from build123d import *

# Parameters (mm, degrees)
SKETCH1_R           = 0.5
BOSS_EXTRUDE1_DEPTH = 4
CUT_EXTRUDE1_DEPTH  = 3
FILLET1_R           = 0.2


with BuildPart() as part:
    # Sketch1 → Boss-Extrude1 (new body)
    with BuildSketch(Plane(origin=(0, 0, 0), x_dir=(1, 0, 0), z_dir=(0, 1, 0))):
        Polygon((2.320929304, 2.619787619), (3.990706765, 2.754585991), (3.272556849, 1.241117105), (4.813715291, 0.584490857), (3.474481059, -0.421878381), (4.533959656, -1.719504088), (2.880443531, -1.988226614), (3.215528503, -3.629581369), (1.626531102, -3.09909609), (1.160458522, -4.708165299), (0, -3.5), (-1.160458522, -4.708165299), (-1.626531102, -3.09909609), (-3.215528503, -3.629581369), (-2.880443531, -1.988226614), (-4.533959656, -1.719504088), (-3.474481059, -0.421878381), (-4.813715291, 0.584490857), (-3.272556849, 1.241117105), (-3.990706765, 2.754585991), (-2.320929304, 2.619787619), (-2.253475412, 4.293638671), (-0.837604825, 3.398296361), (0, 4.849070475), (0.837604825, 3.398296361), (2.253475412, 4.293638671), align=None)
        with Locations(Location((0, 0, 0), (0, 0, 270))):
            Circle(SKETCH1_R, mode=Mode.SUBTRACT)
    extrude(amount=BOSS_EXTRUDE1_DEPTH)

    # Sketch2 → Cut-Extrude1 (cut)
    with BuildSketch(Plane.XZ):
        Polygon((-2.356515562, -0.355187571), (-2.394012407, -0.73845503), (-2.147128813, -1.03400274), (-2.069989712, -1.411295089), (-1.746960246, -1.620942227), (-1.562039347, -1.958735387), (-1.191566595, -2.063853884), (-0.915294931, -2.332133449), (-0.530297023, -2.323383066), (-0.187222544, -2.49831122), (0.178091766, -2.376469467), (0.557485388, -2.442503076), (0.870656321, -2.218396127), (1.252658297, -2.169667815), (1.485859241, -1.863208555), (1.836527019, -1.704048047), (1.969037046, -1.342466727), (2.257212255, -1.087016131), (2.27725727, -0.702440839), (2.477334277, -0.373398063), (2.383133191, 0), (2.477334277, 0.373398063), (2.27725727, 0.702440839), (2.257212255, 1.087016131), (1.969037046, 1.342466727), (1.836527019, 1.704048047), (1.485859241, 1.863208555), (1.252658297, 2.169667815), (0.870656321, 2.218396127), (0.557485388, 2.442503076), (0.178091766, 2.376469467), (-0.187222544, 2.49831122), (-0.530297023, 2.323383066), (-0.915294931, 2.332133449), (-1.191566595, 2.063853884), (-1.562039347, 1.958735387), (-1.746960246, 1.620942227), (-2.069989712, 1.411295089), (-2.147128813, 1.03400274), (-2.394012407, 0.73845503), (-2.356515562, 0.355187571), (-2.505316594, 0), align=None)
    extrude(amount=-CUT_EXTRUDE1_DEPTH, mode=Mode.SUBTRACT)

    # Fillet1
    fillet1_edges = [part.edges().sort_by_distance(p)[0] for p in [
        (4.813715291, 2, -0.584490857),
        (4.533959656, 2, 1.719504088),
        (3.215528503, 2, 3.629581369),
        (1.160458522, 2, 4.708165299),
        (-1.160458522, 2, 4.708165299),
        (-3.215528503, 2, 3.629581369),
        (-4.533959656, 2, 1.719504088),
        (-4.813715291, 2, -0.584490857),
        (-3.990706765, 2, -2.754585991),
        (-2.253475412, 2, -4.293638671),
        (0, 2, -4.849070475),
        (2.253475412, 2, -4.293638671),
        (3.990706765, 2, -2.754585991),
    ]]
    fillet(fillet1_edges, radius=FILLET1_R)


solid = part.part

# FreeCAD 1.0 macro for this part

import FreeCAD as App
import Part
import Sketcher
from FreeCAD import Vector
Q = App.Units.Quantity


def edges_at(feature, points):
    """Names of the edges that pass closest to the given points."""
    edges = feature.Shape.Edges
    near = lambda p: min(range(len(edges)), key=lambda i: edges[i].distToShape(Part.Vertex(*p))[0])
    return sorted({f"Edge{near(p) + 1}" for p in points})

doc = App.newDocument("Part")
body = doc.addObject("PartDesign::Body", "Body")

sketch1 = body.newObject("Sketcher::SketchObject", "Sketch")
sketch1.AttachmentSupport = (doc.getObject("XZ_Plane"), [""])
sketch1.MapMode = "FlatFace"
sketch1.addGeometry([
    Part.LineSegment(Vector(4, -2.8, 0), Vector(2.3, -2.6, 0)),
    Part.LineSegment(Vector(2.3, -2.6, 0), Vector(2.3, -4.3, 0)),
    Part.LineSegment(Vector(2.3, -4.3, 0), Vector(0.8, -3.4, 0)),
    Part.LineSegment(Vector(0.8, -3.4, 0), Vector(0, -4.8, 0)),
    Part.LineSegment(Vector(0, -4.8, 0), Vector(-0.8, -3.4, 0)),
    Part.LineSegment(Vector(-0.8, -3.4, 0), Vector(-2.3, -4.3, 0)),
    Part.LineSegment(Vector(-2.3, -4.3, 0), Vector(-2.3, -2.6, 0)),
    Part.LineSegment(Vector(-2.3, -2.6, 0), Vector(-4, -2.8, 0)),
    Part.LineSegment(Vector(-4, -2.8, 0), Vector(-3.3, -1.2, 0)),
    Part.LineSegment(Vector(-3.3, -1.2, 0), Vector(-4.8, -0.6, 0)),
    Part.LineSegment(Vector(-4.8, -0.6, 0), Vector(-3.5, 0.4, 0)),
    Part.LineSegment(Vector(-3.5, 0.4, 0), Vector(-4.5, 1.7, 0)),
    Part.LineSegment(Vector(-4.5, 1.7, 0), Vector(-2.9, 2, 0)),
    Part.LineSegment(Vector(-2.9, 2, 0), Vector(-3.2, 3.6, 0)),
    Part.LineSegment(Vector(-3.2, 3.6, 0), Vector(-1.6, 3.1, 0)),
    Part.LineSegment(Vector(-1.6, 3.1, 0), Vector(-1.2, 4.7, 0)),
    Part.LineSegment(Vector(-1.2, 4.7, 0), Vector(0, 3.5, 0)),
    Part.LineSegment(Vector(0, 3.5, 0), Vector(1.2, 4.7, 0)),
    Part.LineSegment(Vector(1.2, 4.7, 0), Vector(1.6, 3.1, 0)),
    Part.LineSegment(Vector(1.6, 3.1, 0), Vector(3.2, 3.6, 0)),
    Part.LineSegment(Vector(3.2, 3.6, 0), Vector(2.9, 2, 0)),
    Part.LineSegment(Vector(2.9, 2, 0), Vector(4.5, 1.7, 0)),
    Part.LineSegment(Vector(4.5, 1.7, 0), Vector(3.5, 0.4, 0)),
    Part.LineSegment(Vector(3.5, 0.4, 0), Vector(4.8, -0.6, 0)),
    Part.LineSegment(Vector(4.8, -0.6, 0), Vector(3.3, -1.2, 0)),
    Part.LineSegment(Vector(3.3, -1.2, 0), Vector(4, -2.8, 0)),
    Part.Circle(Vector(0, 0, 0), Vector(0, 0, 1), 0.5),
], False)
sketch1.addConstraint([
    Sketcher.Constraint("Coincident", 0, 2, 1, 1),
    Sketcher.Constraint("Coincident", 1, 2, 2, 1),
    Sketcher.Constraint("Coincident", 2, 2, 3, 1),
    Sketcher.Constraint("Coincident", 3, 2, 4, 1),
    Sketcher.Constraint("Coincident", 4, 2, 5, 1),
    Sketcher.Constraint("Coincident", 5, 2, 6, 1),
    Sketcher.Constraint("Coincident", 6, 2, 7, 1),
    Sketcher.Constraint("Coincident", 7, 2, 8, 1),
    Sketcher.Constraint("Coincident", 8, 2, 9, 1),
    Sketcher.Constraint("Coincident", 9, 2, 10, 1),
    Sketcher.Constraint("Coincident", 10, 2, 11, 1),
    Sketcher.Constraint("Coincident", 11, 2, 12, 1),
    Sketcher.Constraint("Coincident", 12, 2, 13, 1),
    Sketcher.Constraint("Coincident", 13, 2, 14, 1),
    Sketcher.Constraint("Coincident", 14, 2, 15, 1),
    Sketcher.Constraint("Coincident", 15, 2, 16, 1),
    Sketcher.Constraint("Coincident", 16, 2, 17, 1),
    Sketcher.Constraint("Coincident", 17, 2, 18, 1),
    Sketcher.Constraint("Coincident", 18, 2, 19, 1),
    Sketcher.Constraint("Coincident", 19, 2, 20, 1),
    Sketcher.Constraint("Coincident", 20, 2, 21, 1),
    Sketcher.Constraint("Coincident", 21, 2, 22, 1),
    Sketcher.Constraint("Coincident", 22, 2, 23, 1),
    Sketcher.Constraint("Coincident", 23, 2, 24, 1),
    Sketcher.Constraint("Coincident", 24, 2, 25, 1),
    Sketcher.Constraint("Coincident", 25, 2, 0, 1),
    Sketcher.Constraint("Coincident", 26, 3, -1, 1),
    Sketcher.Constraint("Symmetric", 2, 2, 4, 2, -2),
    Sketcher.Constraint("Symmetric", 1, 2, 5, 2, -2),
    Sketcher.Constraint("Symmetric", 0, 2, 6, 2, -2),
    Sketcher.Constraint("Symmetric", 15, 2, 17, 2, -2),
    Sketcher.Constraint("Symmetric", 14, 2, 18, 2, -2),
    Sketcher.Constraint("Symmetric", 13, 2, 19, 2, -2),
    Sketcher.Constraint("Symmetric", 12, 2, 20, 2, -2),
    Sketcher.Constraint("Symmetric", 11, 2, 21, 2, -2),
    Sketcher.Constraint("Symmetric", 10, 2, 22, 2, -2),
    Sketcher.Constraint("Symmetric", 9, 2, 23, 2, -2),
    Sketcher.Constraint("Symmetric", 8, 2, 24, 2, -2),
    Sketcher.Constraint("Symmetric", 7, 2, 25, 2, -2),
    Sketcher.Constraint("PointOnObject", 3, 2, -2),
    Sketcher.Constraint("PointOnObject", 16, 2, -2),
    Sketcher.Constraint("Equal", 0, 1),
    Sketcher.Constraint("Equal", 1, 2),
    Sketcher.Constraint("Equal", 2, 3),
    Sketcher.Constraint("Equal", 7, 8),
    Sketcher.Constraint("Equal", 8, 9),
    Sketcher.Constraint("Equal", 9, 10),
    Sketcher.Constraint("Equal", 10, 11),
    Sketcher.Constraint("Equal", 11, 12),
    Sketcher.Constraint("Equal", 12, 13),
    Sketcher.Constraint("Equal", 13, 14),
    Sketcher.Constraint("Equal", 14, 15),
    Sketcher.Constraint("Equal", 15, 16),
    Sketcher.Constraint("Diameter", 26, Q("1 mm")),
    Sketcher.Constraint("Angle", 3, Q("-120 deg")),
    Sketcher.Constraint("DistanceY", -1, 1, 16, 2, Q("3.5 mm")),
    Sketcher.Constraint("DistanceY", 7, 2, 6, 2, Q("0.134798 mm")),
    Sketcher.Constraint("DistanceX", 7, 2, 4, 2, Q("3.153102 mm")),
    Sketcher.Constraint("DistanceX", 11, 2, 15, 2, Q("3.373501 mm")),
    Sketcher.Constraint("Distance", 0, Q("1.67521 mm")),
    Sketcher.Constraint("DistanceY", 1, 2, -1, 1, Q("4.293639 mm")),
    Sketcher.Constraint("DistanceY", 3, 2, -1, 1, Q("4.84907 mm")),
    Sketcher.Constraint("DistanceY", 9, 2, -1, 1, Q("0.584491 mm")),
    Sketcher.Constraint("DistanceX", 10, 2, -1, 1, Q("3.474481 mm")),
    Sketcher.Constraint("DistanceY", -1, 1, 10, 2, Q("0.421878 mm")),
    Sketcher.Constraint("DistanceX", 11, 2, -1, 1, Q("4.53396 mm")),
    Sketcher.Constraint("DistanceX", 13, 2, -1, 1, Q("3.215529 mm")),
    Sketcher.Constraint("DistanceY", -1, 1, 13, 2, Q("3.629581 mm")),
])
pad1 = body.newObject("PartDesign::Pad", "Pad")
pad1.Profile = sketch1
pad1.Length = 4
pad1.Reversed = True

sketch2 = body.newObject("Sketcher::SketchObject", "Sketch001")
sketch2.AttachmentSupport = (doc.getObject("XZ_Plane"), [""])
sketch2.MapMode = "FlatFace"
sketch2.addGeometry([
    Part.LineSegment(Vector(-2.36, -0.36, 0), Vector(-2.39, -0.74, 0)),
    Part.LineSegment(Vector(-2.39, -0.74, 0), Vector(-2.15, -1.03, 0)),
    Part.LineSegment(Vector(-2.15, -1.03, 0), Vector(-2.07, -1.41, 0)),
    Part.LineSegment(Vector(-2.07, -1.41, 0), Vector(-1.75, -1.62, 0)),
    Part.LineSegment(Vector(-1.75, -1.62, 0), Vector(-1.56, -1.96, 0)),
    Part.LineSegment(Vector(-1.56, -1.96, 0), Vector(-1.19, -2.06, 0)),
    Part.LineSegment(Vector(-1.19, -2.06, 0), Vector(-0.92, -2.33, 0)),
    Part.LineSegment(Vector(-0.92, -2.33, 0), Vector(-0.53, -2.32, 0)),
    Part.LineSegment(Vector(-0.53, -2.32, 0), Vector(-0.19, -2.5, 0)),
    Part.LineSegment(Vector(-0.19, -2.5, 0), Vector(0.18, -2.38, 0)),
    Part.LineSegment(Vector(0.18, -2.38, 0), Vector(0.56, -2.44, 0)),
    Part.LineSegment(Vector(0.56, -2.44, 0), Vector(0.87, -2.22, 0)),
    Part.LineSegment(Vector(0.87, -2.22, 0), Vector(1.25, -2.17, 0)),
    Part.LineSegment(Vector(1.25, -2.17, 0), Vector(1.49, -1.86, 0)),
    Part.LineSegment(Vector(1.49, -1.86, 0), Vector(1.84, -1.7, 0)),
    Part.LineSegment(Vector(1.84, -1.7, 0), Vector(1.97, -1.34, 0)),
    Part.LineSegment(Vector(1.97, -1.34, 0), Vector(2.26, -1.09, 0)),
    Part.LineSegment(Vector(2.26, -1.09, 0), Vector(2.28, -0.7, 0)),
    Part.LineSegment(Vector(2.28, -0.7, 0), Vector(2.48, -0.37, 0)),
    Part.LineSegment(Vector(2.48, -0.37, 0), Vector(2.38, 0, 0)),
    Part.LineSegment(Vector(2.38, 0, 0), Vector(2.48, 0.37, 0)),
    Part.LineSegment(Vector(2.48, 0.37, 0), Vector(2.28, 0.7, 0)),
    Part.LineSegment(Vector(2.28, 0.7, 0), Vector(2.26, 1.09, 0)),
    Part.LineSegment(Vector(2.26, 1.09, 0), Vector(1.97, 1.34, 0)),
    Part.LineSegment(Vector(1.97, 1.34, 0), Vector(1.84, 1.7, 0)),
    Part.LineSegment(Vector(1.84, 1.7, 0), Vector(1.49, 1.86, 0)),
    Part.LineSegment(Vector(1.49, 1.86, 0), Vector(1.25, 2.17, 0)),
    Part.LineSegment(Vector(1.25, 2.17, 0), Vector(0.87, 2.22, 0)),
    Part.LineSegment(Vector(0.87, 2.22, 0), Vector(0.56, 2.44, 0)),
    Part.LineSegment(Vector(0.56, 2.44, 0), Vector(0.18, 2.38, 0)),
    Part.LineSegment(Vector(0.18, 2.38, 0), Vector(-0.19, 2.5, 0)),
    Part.LineSegment(Vector(-0.19, 2.5, 0), Vector(-0.53, 2.32, 0)),
    Part.LineSegment(Vector(-0.53, 2.32, 0), Vector(-0.92, 2.33, 0)),
    Part.LineSegment(Vector(-0.92, 2.33, 0), Vector(-1.19, 2.06, 0)),
    Part.LineSegment(Vector(-1.19, 2.06, 0), Vector(-1.56, 1.96, 0)),
    Part.LineSegment(Vector(-1.56, 1.96, 0), Vector(-1.75, 1.62, 0)),
    Part.LineSegment(Vector(-1.75, 1.62, 0), Vector(-2.07, 1.41, 0)),
    Part.LineSegment(Vector(-2.07, 1.41, 0), Vector(-2.15, 1.03, 0)),
    Part.LineSegment(Vector(-2.15, 1.03, 0), Vector(-2.39, 0.74, 0)),
    Part.LineSegment(Vector(-2.39, 0.74, 0), Vector(-2.36, 0.36, 0)),
    Part.LineSegment(Vector(-2.36, 0.36, 0), Vector(-2.51, 0, 0)),
    Part.LineSegment(Vector(-2.51, 0, 0), Vector(-2.36, -0.36, 0)),
], False)
sketch2.addConstraint([
    Sketcher.Constraint("Coincident", 0, 2, 1, 1),
    Sketcher.Constraint("Coincident", 1, 2, 2, 1),
    Sketcher.Constraint("Coincident", 2, 2, 3, 1),
    Sketcher.Constraint("Coincident", 3, 2, 4, 1),
    Sketcher.Constraint("Coincident", 4, 2, 5, 1),
    Sketcher.Constraint("Coincident", 5, 2, 6, 1),
    Sketcher.Constraint("Coincident", 6, 2, 7, 1),
    Sketcher.Constraint("Coincident", 7, 2, 8, 1),
    Sketcher.Constraint("Coincident", 8, 2, 9, 1),
    Sketcher.Constraint("Coincident", 9, 2, 10, 1),
    Sketcher.Constraint("Coincident", 10, 2, 11, 1),
    Sketcher.Constraint("Coincident", 11, 2, 12, 1),
    Sketcher.Constraint("Coincident", 12, 2, 13, 1),
    Sketcher.Constraint("Coincident", 13, 2, 14, 1),
    Sketcher.Constraint("Coincident", 14, 2, 15, 1),
    Sketcher.Constraint("Coincident", 15, 2, 16, 1),
    Sketcher.Constraint("Coincident", 16, 2, 17, 1),
    Sketcher.Constraint("Coincident", 17, 2, 18, 1),
    Sketcher.Constraint("Coincident", 18, 2, 19, 1),
    Sketcher.Constraint("Coincident", 19, 2, 20, 1),
    Sketcher.Constraint("Coincident", 20, 2, 21, 1),
    Sketcher.Constraint("Coincident", 21, 2, 22, 1),
    Sketcher.Constraint("Coincident", 22, 2, 23, 1),
    Sketcher.Constraint("Coincident", 23, 2, 24, 1),
    Sketcher.Constraint("Coincident", 24, 2, 25, 1),
    Sketcher.Constraint("Coincident", 25, 2, 26, 1),
    Sketcher.Constraint("Coincident", 26, 2, 27, 1),
    Sketcher.Constraint("Coincident", 27, 2, 28, 1),
    Sketcher.Constraint("Coincident", 28, 2, 29, 1),
    Sketcher.Constraint("Coincident", 29, 2, 30, 1),
    Sketcher.Constraint("Coincident", 30, 2, 31, 1),
    Sketcher.Constraint("Coincident", 31, 2, 32, 1),
    Sketcher.Constraint("Coincident", 32, 2, 33, 1),
    Sketcher.Constraint("Coincident", 33, 2, 34, 1),
    Sketcher.Constraint("Coincident", 34, 2, 35, 1),
    Sketcher.Constraint("Coincident", 35, 2, 36, 1),
    Sketcher.Constraint("Coincident", 36, 2, 37, 1),
    Sketcher.Constraint("Coincident", 37, 2, 38, 1),
    Sketcher.Constraint("Coincident", 38, 2, 39, 1),
    Sketcher.Constraint("Coincident", 39, 2, 40, 1),
    Sketcher.Constraint("Coincident", 40, 2, 41, 1),
    Sketcher.Constraint("Coincident", 41, 2, 0, 1),
    Sketcher.Constraint("Symmetric", 18, 2, 20, 2, -1),
    Sketcher.Constraint("Symmetric", 17, 2, 21, 2, -1),
    Sketcher.Constraint("Symmetric", 16, 2, 22, 2, -1),
    Sketcher.Constraint("Symmetric", 15, 2, 23, 2, -1),
    Sketcher.Constraint("Symmetric", 14, 2, 24, 2, -1),
    Sketcher.Constraint("Symmetric", 13, 2, 25, 2, -1),
    Sketcher.Constraint("Symmetric", 12, 2, 26, 2, -1),
    Sketcher.Constraint("Symmetric", 11, 2, 27, 2, -1),
    Sketcher.Constraint("Symmetric", 10, 2, 28, 2, -1),
    Sketcher.Constraint("Symmetric", 9, 2, 29, 2, -1),
    Sketcher.Constraint("Symmetric", 8, 2, 30, 2, -1),
    Sketcher.Constraint("Symmetric", 7, 2, 31, 2, -1),
    Sketcher.Constraint("Symmetric", 6, 2, 32, 2, -1),
    Sketcher.Constraint("Symmetric", 5, 2, 33, 2, -1),
    Sketcher.Constraint("Symmetric", 4, 2, 34, 2, -1),
    Sketcher.Constraint("Symmetric", 3, 2, 35, 2, -1),
    Sketcher.Constraint("Symmetric", 2, 2, 36, 2, -1),
    Sketcher.Constraint("Symmetric", 1, 2, 37, 2, -1),
    Sketcher.Constraint("Symmetric", 0, 2, 38, 2, -1),
    Sketcher.Constraint("Symmetric", 39, 2, 41, 2, -1),
    Sketcher.Constraint("PointOnObject", 19, 2, -1),
    Sketcher.Constraint("PointOnObject", 40, 2, -1),
    Sketcher.Constraint("Equal", 0, 1),
    Sketcher.Constraint("Equal", 1, 2),
    Sketcher.Constraint("Equal", 2, 3),
    Sketcher.Constraint("Equal", 3, 4),
    Sketcher.Constraint("Equal", 4, 5),
    Sketcher.Constraint("Equal", 5, 6),
    Sketcher.Constraint("Equal", 6, 7),
    Sketcher.Constraint("Equal", 7, 8),
    Sketcher.Constraint("Equal", 8, 9),
    Sketcher.Constraint("Equal", 9, 10),
    Sketcher.Constraint("Equal", 10, 11),
    Sketcher.Constraint("Equal", 11, 12),
    Sketcher.Constraint("Equal", 12, 13),
    Sketcher.Constraint("Equal", 13, 14),
    Sketcher.Constraint("Equal", 14, 15),
    Sketcher.Constraint("Equal", 15, 16),
    Sketcher.Constraint("Equal", 16, 17),
    Sketcher.Constraint("Equal", 17, 18),
    Sketcher.Constraint("Equal", 18, 19),
    Sketcher.Constraint("Equal", 39, 40),
    Sketcher.Constraint("DistanceX", 11, 2, 12, 2, Q("0.382002 mm")),
    Sketcher.Constraint("DistanceY", 18, 2, -1, 1, Q("0.373398 mm")),
    Sketcher.Constraint("DistanceY", 5, 2, 0, 2, Q("1.325399 mm")),
    Sketcher.Constraint("DistanceY", 6, 2, 4, 2, Q("0.373398 mm")),
    Sketcher.Constraint("DistanceY", 9, 2, 12, 2, Q("0.206802 mm")),
    Sketcher.Constraint("DistanceX", 12, 2, 13, 2, Q("0.233201 mm")),
    Sketcher.Constraint("DistanceY", 12, 2, 15, 2, Q("0.827201 mm")),
    Sketcher.Constraint("DistanceX", 13, 2, 17, 2, Q("0.791398 mm")),
    Sketcher.Constraint("DistanceX", 19, 2, 18, 2, Q("0.094201 mm")),
    Sketcher.Constraint("DistanceX", 40, 2, 39, 2, Q("0.148801 mm")),
    Sketcher.Constraint("DistanceX", 1, 2, -1, 1, Q("2.147129 mm")),
    Sketcher.Constraint("DistanceX", 2, 2, -1, 1, Q("2.06999 mm")),
    Sketcher.Constraint("DistanceX", 3, 2, -1, 1, Q("1.74696 mm")),
    Sketcher.Constraint("DistanceX", 4, 2, -1, 1, Q("1.562039 mm")),
    Sketcher.Constraint("DistanceY", 8, 2, -1, 1, Q("2.498311 mm")),
    Sketcher.Constraint("DistanceX", -1, 1, 9, 2, Q("0.178092 mm")),
    Sketcher.Constraint("DistanceY", 9, 2, -1, 1, Q("2.376469 mm")),
    Sketcher.Constraint("DistanceX", -1, 1, 12, 2, Q("1.252658 mm")),
    Sketcher.Constraint("DistanceY", 14, 2, -1, 1, Q("1.704048 mm")),
    Sketcher.Constraint("DistanceY", 17, 2, -1, 1, Q("0.702441 mm")),
    Sketcher.Constraint("DistanceY", 2, 2, 0, 2, Q("0.67284 mm")),
    Sketcher.Constraint("DistanceY", 6, 2, 7, 2, Q("0.00875 mm")),
])
pocket1 = body.newObject("PartDesign::Pocket", "Pocket")
pocket1.Profile = sketch2
pocket1.Length = 3
doc.recompute()

fillet = body.newObject("PartDesign::Fillet", "Fillet")
fillet.Base = (pocket1, edges_at(pocket1, [
    (4.814, 2, -0.584),
    (4.534, 2, 1.72),
    (3.216, 2, 3.63),
    (1.16, 2, 4.708),
    (-1.16, 2, 4.708),
    (-3.216, 2, 3.63),
    (-4.534, 2, 1.72),
    (-4.814, 2, -0.584),
    (-3.991, 2, -2.755),
    (-2.253, 2, -4.294),
    (0, 2, -4.849),
    (2.253, 2, -4.294),
    (3.991, 2, -2.755),
]))
fillet.Radius = 0.2

doc.recompute()
